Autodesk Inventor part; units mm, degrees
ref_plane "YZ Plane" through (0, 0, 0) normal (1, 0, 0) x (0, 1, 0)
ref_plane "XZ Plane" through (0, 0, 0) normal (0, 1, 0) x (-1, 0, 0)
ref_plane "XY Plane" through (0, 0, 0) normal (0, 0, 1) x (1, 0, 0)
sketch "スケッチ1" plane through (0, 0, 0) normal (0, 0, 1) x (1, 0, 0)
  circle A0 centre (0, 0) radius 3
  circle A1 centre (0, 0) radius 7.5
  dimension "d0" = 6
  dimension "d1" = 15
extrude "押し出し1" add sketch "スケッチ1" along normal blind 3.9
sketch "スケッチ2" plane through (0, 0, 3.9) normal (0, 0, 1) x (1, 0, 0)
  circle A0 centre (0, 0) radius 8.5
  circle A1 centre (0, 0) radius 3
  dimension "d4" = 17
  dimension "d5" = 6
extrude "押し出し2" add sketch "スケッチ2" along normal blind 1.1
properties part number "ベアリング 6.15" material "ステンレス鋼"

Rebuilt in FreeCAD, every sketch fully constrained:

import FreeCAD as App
import Part
import Sketcher

V = App.Vector

doc = App.newDocument("Part")
body = doc.addObject("PartDesign::Body", "Body")

sketch1 = doc.addObject("Sketcher::SketchObject", "Sketch")
body.addObject(sketch1)
sketch1.AttachmentSupport = (doc.XY_Plane, [""])
sketch1.MapMode = "FlatFace"
sketch1.addGeometry([
    Part.Circle(V(0, 0, 0), V(0, 0, 1), 7.5),
    Part.Circle(V(0, 0, 0), V(0, 0, 1), 3),
], False)
sketch1.addConstraint([
    Sketcher.Constraint("Coincident", 0, 3, -1, 1),
    Sketcher.Constraint("Coincident", 1, 3, -1, 1),
    Sketcher.Constraint("Diameter", 0, 15.0),
    Sketcher.Constraint("Diameter", 1, 6.0),
])
pad1 = doc.addObject("PartDesign::Pad", "Pad")
body.addObject(pad1)
pad1.Profile = sketch1
pad1.Length = 3.9

sketch2 = doc.addObject("Sketcher::SketchObject", "Sketch001")
body.addObject(sketch2)
sketch2.AttachmentSupport = (doc.XY_Plane, [""])
sketch2.MapMode = "FlatFace"
sketch2.AttachmentOffset = App.Placement(V(0, 0, 3.9), App.Rotation())
sketch2.addGeometry([
    Part.Circle(V(0, 0, 0), V(0, 0, 1), 8.5),
    Part.Circle(V(0, 0, 0), V(0, 0, 1), 3),
], False)
sketch2.addConstraint([
    Sketcher.Constraint("Coincident", 0, 3, -1, 1),
    Sketcher.Constraint("Coincident", 1, 3, -1, 1),
    Sketcher.Constraint("Diameter", 0, 17.0),
    Sketcher.Constraint("Diameter", 1, 6.0),
])
pad2 = doc.addObject("PartDesign::Pad", "Pad001")
body.addObject(pad2)
pad2.Profile = sketch2
pad2.Length = 1.1

doc.recompute()
